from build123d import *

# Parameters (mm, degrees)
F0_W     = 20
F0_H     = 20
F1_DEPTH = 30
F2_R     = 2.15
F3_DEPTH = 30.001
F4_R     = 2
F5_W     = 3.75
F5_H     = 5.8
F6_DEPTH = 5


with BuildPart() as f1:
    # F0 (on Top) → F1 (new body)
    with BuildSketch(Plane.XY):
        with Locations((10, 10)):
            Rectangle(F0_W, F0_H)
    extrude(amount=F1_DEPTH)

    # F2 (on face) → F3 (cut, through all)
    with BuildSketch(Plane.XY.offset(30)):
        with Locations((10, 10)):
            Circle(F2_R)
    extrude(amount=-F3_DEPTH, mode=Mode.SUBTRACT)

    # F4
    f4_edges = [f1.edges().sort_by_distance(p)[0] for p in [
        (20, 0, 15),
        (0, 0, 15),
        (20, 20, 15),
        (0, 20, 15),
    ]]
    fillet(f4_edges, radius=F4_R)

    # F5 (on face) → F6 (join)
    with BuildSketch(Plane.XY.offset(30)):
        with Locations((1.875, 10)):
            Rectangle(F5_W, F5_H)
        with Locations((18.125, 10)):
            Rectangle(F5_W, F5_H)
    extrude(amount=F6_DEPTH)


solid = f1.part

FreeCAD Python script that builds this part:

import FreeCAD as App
import Part
import Sketcher
Q = App.Units.Quantity


def edges_at(feature, points):
    """Names of the edges that pass closest to the given points."""
    edges = feature.Shape.Edges
    near = lambda p: min(range(len(edges)), key=lambda i: edges[i].distToShape(Part.Vertex(*p))[0])
    return sorted({f"Edge{near(p) + 1}" for p in points})


def add_polygon(sketch, points):
    """Adds a closed chain of lines whose ends are joined by coincident constraints."""
    first, n = sketch.GeometryCount, len(points)
    for a, b in zip(points, points[1:] + points[:1]):
        sketch.addGeometry(Part.LineSegment(App.Vector(*a, 0), App.Vector(*b, 0)), False)
    for i in range(n):
        sketch.addConstraint(Sketcher.Constraint("Coincident", first + i, 2, first + (i + 1) % n, 1))

doc = App.newDocument("Part")
params = doc.addObject("Spreadsheet::Sheet", "Params")
for row, (alias, value) in enumerate([
    ("sketch1_width", "20 mm"),
    ("pad1_length", "30 mm"),
    ("sketch2_diameter", "4.3 mm"),
    ("fillet_radius", "2 mm"),
    ("sketch3_height", "5.8 mm"),
    ("sketch3_width", "3.75 mm"),
    ("pad2_length", "5 mm"),
], start=1):
    params.set(f"A{row}", alias)
    params.set(f"B{row}", "=" + value)
    params.setAlias(f"B{row}", alias)

body = doc.addObject("PartDesign::Body", "Body")

sketch1 = doc.addObject("Sketcher::SketchObject", "Sketch")
body.addObject(sketch1)
sketch1.AttachmentSupport = (doc.XY_Plane, [""])
sketch1.MapMode = "FlatFace"
add_polygon(sketch1, [(0, 20), (0, 0), (20, 0), (20, 20)])
sketch1.addConstraint([
    Sketcher.Constraint("Vertical", 0),
    Sketcher.Constraint("Horizontal", 1),
    Sketcher.Constraint("Vertical", 2),
    Sketcher.Constraint("Horizontal", 3),
    Sketcher.Constraint("Coincident", 0, 2, -1, 1),
    Sketcher.Constraint("Equal", 3, 0),
    Sketcher.Constraint("DistanceX", 1, 1, 1, 2, Q("20 mm")),
])
sketch1.setExpression("Constraints[10]", "Params.sketch1_width")
pad1 = doc.addObject("PartDesign::Pad", "Pad")
body.addObject(pad1)
pad1.Profile = sketch1
pad1.setExpression("Length", "Params.pad1_length")

sketch2 = doc.addObject("Sketcher::SketchObject", "Sketch001")
body.addObject(sketch2)
sketch2.AttachmentSupport = (doc.XY_Plane, [""])
sketch2.MapMode = "FlatFace"
sketch2.AttachmentOffset = App.Placement(App.Vector(0, 0, 30), App.Rotation())
sketch2.addGeometry(Part.Circle(App.Vector(10, 10, 0), App.Vector(0, 0, 1), 2.1), False)
sketch2.addConstraint([
    Sketcher.Constraint("Diameter", 0, Q("4.3 mm")),
    Sketcher.Constraint("DistanceX", -1, 1, 0, 3, Q("10 mm")),
    Sketcher.Constraint("DistanceY", -1, 1, 0, 3, Q("10 mm")),
])
sketch2.setExpression("Constraints[0]", "Params.sketch2_diameter")
pocket1 = doc.addObject("PartDesign::Pocket", "Pocket")
body.addObject(pocket1)
pocket1.Profile = sketch2
pocket1.Type = "ThroughAll"
doc.recompute()

fillet = doc.addObject("PartDesign::Fillet", "Fillet")
body.addObject(fillet)
fillet.Base = (pocket1, edges_at(pocket1, [
    (20, 0, 15),
    (0, 0, 15),
    (20, 20, 15),
    (0, 20, 15),
]))
fillet.setExpression("Radius", "Params.fillet_radius")

sketch3 = doc.addObject("Sketcher::SketchObject", "Sketch002")
body.addObject(sketch3)
sketch3.AttachmentSupport = (doc.XY_Plane, [""])
sketch3.MapMode = "FlatFace"
sketch3.AttachmentOffset = App.Placement(App.Vector(0, 0, 30), App.Rotation())
add_polygon(sketch3, [(0, 12.9), (0, 7.1), (3.8, 7.1), (3.8, 12.9)])
add_polygon(sketch3, [(16.2, 12.9), (16.2, 7.1), (20, 7.1), (20, 12.9)])
sketch3.addConstraint([
    Sketcher.Constraint("Vertical", 0),
    Sketcher.Constraint("Horizontal", 1),
    Sketcher.Constraint("Vertical", 2),
    Sketcher.Constraint("Horizontal", 3),
    Sketcher.Constraint("Vertical", 4),
    Sketcher.Constraint("Horizontal", 5),
    Sketcher.Constraint("Vertical", 6),
    Sketcher.Constraint("Horizontal", 7),
    Sketcher.Constraint("PointOnObject", 0, 2, -2),
    Sketcher.Constraint("Horizontal", 1, 2, 4, 2),
    Sketcher.Constraint("Horizontal", 3, 2, 6, 2),
    Sketcher.Constraint("Equal", 3, 5),
    Sketcher.Constraint("DistanceY", 0, 2, 0, 1, Q("5.8 mm")),
    Sketcher.Constraint("DistanceX", -1, 1, 5, 2, Q("20 mm")),
    Sketcher.Constraint("DistanceX", 1, 1, 1, 2, Q("3.75 mm")),
    Sketcher.Constraint("DistanceY", -1, 1, 0, 2, Q("7.1 mm")),
])
sketch3.setExpression("Constraints[20]", "Params.sketch3_height")
sketch3.setExpression("Constraints[22]", "Params.sketch3_width")
pad2 = doc.addObject("PartDesign::Pad", "Pad001")
body.addObject(pad2)
pad2.Profile = sketch3
pad2.setExpression("Length", "Params.pad2_length")

doc.recompute()
